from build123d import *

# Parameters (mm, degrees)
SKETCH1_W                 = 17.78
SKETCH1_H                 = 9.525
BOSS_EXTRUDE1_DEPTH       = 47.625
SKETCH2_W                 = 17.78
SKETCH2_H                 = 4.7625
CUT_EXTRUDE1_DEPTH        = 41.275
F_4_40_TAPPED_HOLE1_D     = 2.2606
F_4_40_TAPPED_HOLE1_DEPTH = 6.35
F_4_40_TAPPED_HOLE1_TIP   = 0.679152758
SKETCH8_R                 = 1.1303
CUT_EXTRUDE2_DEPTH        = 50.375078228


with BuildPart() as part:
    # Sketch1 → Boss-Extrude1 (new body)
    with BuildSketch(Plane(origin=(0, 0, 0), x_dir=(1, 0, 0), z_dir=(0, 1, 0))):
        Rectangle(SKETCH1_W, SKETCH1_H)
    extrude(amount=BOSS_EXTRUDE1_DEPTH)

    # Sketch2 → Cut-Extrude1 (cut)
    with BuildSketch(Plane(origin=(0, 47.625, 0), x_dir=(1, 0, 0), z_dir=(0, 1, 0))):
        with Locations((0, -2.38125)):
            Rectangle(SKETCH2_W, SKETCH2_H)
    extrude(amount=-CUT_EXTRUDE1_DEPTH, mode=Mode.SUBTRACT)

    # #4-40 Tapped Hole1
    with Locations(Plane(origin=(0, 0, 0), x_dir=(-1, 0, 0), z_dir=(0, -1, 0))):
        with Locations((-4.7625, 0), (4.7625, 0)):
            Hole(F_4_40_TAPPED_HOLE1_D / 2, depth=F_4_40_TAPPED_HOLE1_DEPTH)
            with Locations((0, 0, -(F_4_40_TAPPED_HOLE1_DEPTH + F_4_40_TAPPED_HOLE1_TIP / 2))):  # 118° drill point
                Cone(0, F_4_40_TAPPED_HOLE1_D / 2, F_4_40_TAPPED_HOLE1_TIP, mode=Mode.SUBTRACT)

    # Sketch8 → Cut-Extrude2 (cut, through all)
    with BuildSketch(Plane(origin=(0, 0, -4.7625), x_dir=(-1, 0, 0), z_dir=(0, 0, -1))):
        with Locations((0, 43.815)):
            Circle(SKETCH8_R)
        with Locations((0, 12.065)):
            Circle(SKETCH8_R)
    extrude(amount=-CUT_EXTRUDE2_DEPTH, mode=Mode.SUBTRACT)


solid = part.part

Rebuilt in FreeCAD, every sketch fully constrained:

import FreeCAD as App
import Part
import Sketcher
from FreeCAD import Vector
Q = App.Units.Quantity

doc = App.newDocument("Part")
body = doc.addObject("PartDesign::Body", "Body")

sketch1 = body.newObject("Sketcher::SketchObject", "Sketch")
sketch1.AttachmentSupport = (doc.getObject("XZ_Plane"), [""])
sketch1.MapMode = "FlatFace"
sketch1.addGeometry(Part.LineSegment(Vector(-9, -5, 0), Vector(-9, 5, 0)), False)
sketch1.addGeometry(Part.LineSegment(Vector(-9, 5, 0), Vector(9, 5, 0)), False)
sketch1.addGeometry(Part.LineSegment(Vector(9, 5, 0), Vector(9, -5, 0)), False)
sketch1.addGeometry(Part.LineSegment(Vector(9, -5, 0), Vector(-9, -5, 0)), False)
sketch1.addConstraint(Sketcher.Constraint("Coincident", 0, 2, 1, 1))
sketch1.addConstraint(Sketcher.Constraint("Coincident", 1, 2, 2, 1))
sketch1.addConstraint(Sketcher.Constraint("Coincident", 2, 2, 3, 1))
sketch1.addConstraint(Sketcher.Constraint("Coincident", 3, 2, 0, 1))
sketch1.addConstraint(Sketcher.Constraint("Vertical", 0))
sketch1.addConstraint(Sketcher.Constraint("Horizontal", 1))
sketch1.addConstraint(Sketcher.Constraint("Vertical", 2))
sketch1.addConstraint(Sketcher.Constraint("Horizontal", 3))
sketch1.addConstraint(Sketcher.Constraint("Symmetric", 0, 2, 2, 2, -1, 1))
sketch1.addConstraint(Sketcher.Constraint("DistanceX", 1, 1, 1, 2, Q("0.7 in")))
sketch1.addConstraint(Sketcher.Constraint("DistanceY", 0, 1, 0, 2, Q("0.375 in")))
pad1 = body.newObject("PartDesign::Pad", "Pad")
pad1.Profile = sketch1
pad1.Length = Q("1.875 in")
pad1.Reversed = True

sketch2 = body.newObject("Sketcher::SketchObject", "Sketch001")
sketch2.AttachmentSupport = (doc.getObject("XZ_Plane"), [""])
sketch2.MapMode = "FlatFace"
sketch2.AttachmentOffset = App.Placement(Vector(0, 0, -1.875 * 25.4), App.Rotation())
sketch2.addGeometry(Part.LineSegment(Vector(-8.9, 0, 0), Vector(-8.9, 4.8, 0)), False)
sketch2.addGeometry(Part.LineSegment(Vector(-8.9, 4.8, 0), Vector(8.9, 4.8, 0)), False)
sketch2.addGeometry(Part.LineSegment(Vector(8.9, 4.8, 0), Vector(8.9, 0, 0)), False)
sketch2.addGeometry(Part.LineSegment(Vector(8.9, 0, 0), Vector(-8.9, 0, 0)), False)
sketch2.addConstraint(Sketcher.Constraint("Coincident", 0, 2, 1, 1))
sketch2.addConstraint(Sketcher.Constraint("Coincident", 1, 2, 2, 1))
sketch2.addConstraint(Sketcher.Constraint("Coincident", 2, 2, 3, 1))
sketch2.addConstraint(Sketcher.Constraint("Coincident", 3, 2, 0, 1))
sketch2.addConstraint(Sketcher.Constraint("Vertical", 0))
sketch2.addConstraint(Sketcher.Constraint("Horizontal", 1))
sketch2.addConstraint(Sketcher.Constraint("Vertical", 2))
sketch2.addConstraint(Sketcher.Constraint("Horizontal", 3))
sketch2.addConstraint(Sketcher.Constraint("Symmetric", 2, 2, 3, 2, -1, 1))
sketch2.addConstraint(Sketcher.Constraint("DistanceX", 1, 1, 1, 2, Q("0.7 in")))
sketch2.addConstraint(Sketcher.Constraint("DistanceY", 0, 1, 0, 2, Q("0.1875 in")))
pocket1 = body.newObject("PartDesign::Pocket", "Pocket")
pocket1.Profile = sketch2
pocket1.Length = Q("1.625 in")
pocket1.Reversed = True

sketch3 = body.newObject("Sketcher::SketchObject", "Sketch002")
sketch3.AttachmentSupport = (doc.getObject("XZ_Plane"), [""])
sketch3.MapMode = "FlatFace"
sketch3.addGeometry(Part.Circle(Vector(4.8, 0, 0), Vector(0, 0, 1), 1.1), False)
sketch3.addGeometry(Part.Circle(Vector(-4.8, 0, 0), Vector(0, 0, 1), 1.1), False)
sketch3.addConstraint(Sketcher.Constraint("Equal", 0, 1))
sketch3.addConstraint(Sketcher.Constraint("Symmetric", 0, 3, 1, 3, -1, 1))
sketch3.addConstraint(Sketcher.Constraint("PointOnObject", 0, 3, -1))
sketch3.addConstraint(Sketcher.Constraint("Diameter", 0, Q("0.089 in")))
sketch3.addConstraint(Sketcher.Constraint("DistanceX", -1, 1, 0, 3, Q("0.1875 in")))
doc.recompute()
hole = body.newObject("PartDesign::Hole", "Hole")
hole.Profile = sketch3
hole.ThreadType = "None"
hole.Diameter = Q("0.089 in")
hole.DepthType = "Dimension"
hole.Depth = Q("0.25 in")
hole.DrillPoint = "Angled"
hole.DrillPointAngle = 118

sketch4 = body.newObject("Sketcher::SketchObject", "Sketch003")
sketch4.AttachmentSupport = (doc.getObject("XY_Plane"), [""])
sketch4.MapMode = "FlatFace"
sketch4.AttachmentOffset = App.Placement(Vector(0, 0, -0.1875 * 25.4), App.Rotation())
sketch4.addGeometry(Part.Circle(Vector(0, 43.8, 0), Vector(0, 0, 1), 1.1), False)
sketch4.addGeometry(Part.Circle(Vector(0, 12.1, 0), Vector(0, 0, 1), 1.1), False)
sketch4.addConstraint(Sketcher.Constraint("Equal", 0, 1))
sketch4.addConstraint(Sketcher.Constraint("PointOnObject", 0, 3, -2))
sketch4.addConstraint(Sketcher.Constraint("PointOnObject", 1, 3, -2))
sketch4.addConstraint(Sketcher.Constraint("Diameter", 0, Q("0.089 in")))
sketch4.addConstraint(Sketcher.Constraint("DistanceY", 1, 3, 0, 3, Q("1.25 in")))
sketch4.addConstraint(Sketcher.Constraint("DistanceY", -1, 1, 0, 3, Q("1.725 in")))
pocket2 = body.newObject("PartDesign::Pocket", "Pocket001")
pocket2.Profile = sketch4
pocket2.Type = "ThroughAll"
pocket2.Reversed = True

doc.recompute()
